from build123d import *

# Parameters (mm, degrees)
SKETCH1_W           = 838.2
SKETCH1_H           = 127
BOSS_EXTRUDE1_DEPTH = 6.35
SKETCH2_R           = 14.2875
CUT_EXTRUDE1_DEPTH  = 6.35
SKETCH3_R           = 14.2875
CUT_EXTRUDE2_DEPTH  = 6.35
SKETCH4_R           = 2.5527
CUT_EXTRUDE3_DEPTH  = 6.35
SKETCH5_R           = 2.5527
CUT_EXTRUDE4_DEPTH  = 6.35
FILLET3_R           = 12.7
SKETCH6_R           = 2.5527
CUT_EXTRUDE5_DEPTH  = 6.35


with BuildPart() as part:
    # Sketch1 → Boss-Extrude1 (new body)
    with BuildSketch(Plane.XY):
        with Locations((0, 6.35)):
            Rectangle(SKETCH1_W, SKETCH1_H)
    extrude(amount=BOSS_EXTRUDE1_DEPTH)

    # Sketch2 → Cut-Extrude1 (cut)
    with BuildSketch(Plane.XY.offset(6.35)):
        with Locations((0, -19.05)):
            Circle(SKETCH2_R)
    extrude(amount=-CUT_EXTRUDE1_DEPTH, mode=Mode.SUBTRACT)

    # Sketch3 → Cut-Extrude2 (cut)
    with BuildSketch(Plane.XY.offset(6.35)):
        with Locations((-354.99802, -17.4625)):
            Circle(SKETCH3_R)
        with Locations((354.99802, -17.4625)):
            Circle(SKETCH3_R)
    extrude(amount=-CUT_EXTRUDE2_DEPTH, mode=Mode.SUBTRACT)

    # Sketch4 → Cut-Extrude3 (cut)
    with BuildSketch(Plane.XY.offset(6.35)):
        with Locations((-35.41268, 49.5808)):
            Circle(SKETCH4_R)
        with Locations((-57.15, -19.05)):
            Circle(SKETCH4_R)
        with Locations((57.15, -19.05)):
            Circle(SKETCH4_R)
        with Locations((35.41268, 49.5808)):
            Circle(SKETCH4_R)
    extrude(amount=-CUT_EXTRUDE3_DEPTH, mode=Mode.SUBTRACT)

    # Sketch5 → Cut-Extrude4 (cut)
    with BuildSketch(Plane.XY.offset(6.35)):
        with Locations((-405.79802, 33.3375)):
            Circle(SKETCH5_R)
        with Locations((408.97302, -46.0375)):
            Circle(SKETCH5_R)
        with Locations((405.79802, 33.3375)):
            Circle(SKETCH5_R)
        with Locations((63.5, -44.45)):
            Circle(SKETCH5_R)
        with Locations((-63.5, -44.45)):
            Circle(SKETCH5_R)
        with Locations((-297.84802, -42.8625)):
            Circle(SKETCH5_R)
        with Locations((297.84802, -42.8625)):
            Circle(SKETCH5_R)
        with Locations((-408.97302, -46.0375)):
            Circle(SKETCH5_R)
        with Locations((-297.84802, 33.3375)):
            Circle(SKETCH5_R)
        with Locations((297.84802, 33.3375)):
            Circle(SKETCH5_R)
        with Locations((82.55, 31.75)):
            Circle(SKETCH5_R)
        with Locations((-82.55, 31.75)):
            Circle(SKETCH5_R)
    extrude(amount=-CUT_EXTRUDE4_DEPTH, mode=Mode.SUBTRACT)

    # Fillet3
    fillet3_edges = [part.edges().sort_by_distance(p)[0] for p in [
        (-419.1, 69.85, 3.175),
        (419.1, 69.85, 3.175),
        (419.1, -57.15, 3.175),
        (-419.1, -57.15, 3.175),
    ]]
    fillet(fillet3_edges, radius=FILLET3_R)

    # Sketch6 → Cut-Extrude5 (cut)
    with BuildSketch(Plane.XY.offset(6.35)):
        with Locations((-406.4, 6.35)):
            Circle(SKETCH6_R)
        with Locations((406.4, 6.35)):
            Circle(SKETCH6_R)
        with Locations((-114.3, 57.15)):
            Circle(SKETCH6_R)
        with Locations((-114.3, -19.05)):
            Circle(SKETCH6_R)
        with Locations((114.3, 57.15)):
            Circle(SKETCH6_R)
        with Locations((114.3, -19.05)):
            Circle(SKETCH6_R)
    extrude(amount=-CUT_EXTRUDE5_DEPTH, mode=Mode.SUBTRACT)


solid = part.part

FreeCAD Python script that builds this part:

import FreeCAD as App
import Part
import Sketcher
from FreeCAD import Vector
Q = App.Units.Quantity


def edges_at(feature, points):
    """Names of the edges that pass closest to the given points."""
    edges = feature.Shape.Edges
    near = lambda p: min(range(len(edges)), key=lambda i: edges[i].distToShape(Part.Vertex(*p))[0])
    return sorted({f"Edge{near(p) + 1}" for p in points})

doc = App.newDocument("Part")
body = doc.addObject("PartDesign::Body", "Body")

sketch1 = doc.addObject("Sketcher::SketchObject", "Sketch")
body.addObject(sketch1)
sketch1.AttachmentSupport = (doc.XY_Plane, [""])
sketch1.MapMode = "FlatFace"
sketch1.addGeometry(Part.LineSegment(Vector(-419.1, 69.85, 0), Vector(-419.1, -57.15, 0)), False)
sketch1.addGeometry(Part.LineSegment(Vector(-419.1, -57.15, 0), Vector(419.1, -57.15, 0)), False)
sketch1.addGeometry(Part.LineSegment(Vector(419.1, -57.15, 0), Vector(419.1, 69.85, 0)), False)
sketch1.addGeometry(Part.LineSegment(Vector(419.1, 69.85, 0), Vector(-419.1, 69.85, 0)), False)
sketch1.addConstraint(Sketcher.Constraint("Coincident", 0, 2, 1, 1))
sketch1.addConstraint(Sketcher.Constraint("Coincident", 1, 2, 2, 1))
sketch1.addConstraint(Sketcher.Constraint("Coincident", 2, 2, 3, 1))
sketch1.addConstraint(Sketcher.Constraint("Coincident", 3, 2, 0, 1))
sketch1.addConstraint(Sketcher.Constraint("Vertical", 0))
sketch1.addConstraint(Sketcher.Constraint("Horizontal", 1))
sketch1.addConstraint(Sketcher.Constraint("Vertical", 2))
sketch1.addConstraint(Sketcher.Constraint("Horizontal", 3))
sketch1.addConstraint(Sketcher.Constraint("DistanceX", 1, 1, 1, 2, Q("33 in")))
sketch1.addConstraint(Sketcher.Constraint("DistanceY", 0, 2, 0, 1, Q("5 in")))
sketch1.addConstraint(Sketcher.Constraint("DistanceX", 0, 2, -1, 1, Q("16.5 in")))
sketch1.addConstraint(Sketcher.Constraint("DistanceY", 0, 2, -1, 1, Q("2.25 in")))
pad1 = doc.addObject("PartDesign::Pad", "Pad")
body.addObject(pad1)
pad1.Profile = sketch1
pad1.Length = Q("0.25 in")

sketch2 = doc.addObject("Sketcher::SketchObject", "Sketch001")
body.addObject(sketch2)
sketch2.AttachmentSupport = (doc.XY_Plane, [""])
sketch2.MapMode = "FlatFace"
sketch2.AttachmentOffset = App.Placement(Vector(0, 0, 0.25 * 25.4), App.Rotation())
sketch2.addGeometry(Part.Circle(Vector(0, -19.05, 0), Vector(0, 0, 1), 14.2875), False)
sketch2.addConstraint(Sketcher.Constraint("PointOnObject", 0, 3, -2))
sketch2.addConstraint(Sketcher.Constraint("Diameter", 0, Q("1.125 in")))
sketch2.addConstraint(Sketcher.Constraint("DistanceY", 0, 3, -1, 1, Q("0.75 in")))
pocket1 = doc.addObject("PartDesign::Pocket", "Pocket")
body.addObject(pocket1)
pocket1.Profile = sketch2
pocket1.Length = Q("0.25 in")

sketch3 = doc.addObject("Sketcher::SketchObject", "Sketch002")
body.addObject(sketch3)
sketch3.AttachmentSupport = (doc.XY_Plane, [""])
sketch3.MapMode = "FlatFace"
sketch3.AttachmentOffset = App.Placement(Vector(0, 0, 0.25 * 25.4), App.Rotation())
sketch3.addGeometry(Part.Circle(Vector(-354.99802, -17.4625, 0), Vector(0, 0, 1), 14.2875), False)
sketch3.addGeometry(Part.Circle(Vector(354.99802, -17.4625, 0), Vector(0, 0, 1), 14.2875), False)
sketch3.addConstraint(Sketcher.Constraint("Equal", 0, 1))
sketch3.addConstraint(Sketcher.Constraint("Symmetric", 0, 3, 1, 3, -2))
sketch3.addConstraint(Sketcher.Constraint("Diameter", 0, Q("1.125 in")))
sketch3.addConstraint(Sketcher.Constraint("DistanceY", 0, 3, -1, 1, Q("0.6875 in")))
sketch3.addConstraint(Sketcher.Constraint("DistanceX", 0, 3, -1, 1, Q("13.9763 in")))
pocket2 = doc.addObject("PartDesign::Pocket", "Pocket001")
body.addObject(pocket2)
pocket2.Profile = sketch3
pocket2.Length = Q("0.25 in")

sketch4 = doc.addObject("Sketcher::SketchObject", "Sketch003")
body.addObject(sketch4)
sketch4.AttachmentSupport = (doc.XY_Plane, [""])
sketch4.MapMode = "FlatFace"
sketch4.AttachmentOffset = App.Placement(Vector(0, 0, 0.25 * 25.4), App.Rotation())
sketch4.addGeometry(Part.Circle(Vector(-35.41268, 49.5808, 0), Vector(0, 0, 1), 2.5527), False)
sketch4.addGeometry(Part.Circle(Vector(-57.15, -19.05, 0), Vector(0, 0, 1), 2.5527), False)
sketch4.addGeometry(Part.Circle(Vector(57.15, -19.05, 0), Vector(0, 0, 1), 2.5527), False)
sketch4.addGeometry(Part.Circle(Vector(35.41268, 49.5808, 0), Vector(0, 0, 1), 2.5527), False)
sketch4.addConstraint(Sketcher.Constraint("Equal", 0, 1))
sketch4.addConstraint(Sketcher.Constraint("Equal", 1, 2))
sketch4.addConstraint(Sketcher.Constraint("Equal", 2, 3))
sketch4.addConstraint(Sketcher.Constraint("Symmetric", 1, 3, 2, 3, -2))
sketch4.addConstraint(Sketcher.Constraint("Symmetric", 0, 3, 3, 3, -2))
sketch4.addConstraint(Sketcher.Constraint("Diameter", 0, Q("0.201 in")))
sketch4.addConstraint(Sketcher.Constraint("DistanceX", 1, 3, 2, 3, Q("4.5 in")))
sketch4.addConstraint(Sketcher.Constraint("DistanceY", 1, 3, -1, 1, Q("0.75 in")))
sketch4.addConstraint(Sketcher.Constraint("DistanceY", -1, 1, 0, 3, Q("1.952 in")))
sketch4.addConstraint(Sketcher.Constraint("DistanceX", 0, 3, -1, 1, Q("1.3942 in")))
pocket3 = doc.addObject("PartDesign::Pocket", "Pocket002")
body.addObject(pocket3)
pocket3.Profile = sketch4
pocket3.Length = Q("0.25 in")

sketch5 = doc.addObject("Sketcher::SketchObject", "Sketch004")
body.addObject(sketch5)
sketch5.AttachmentSupport = (doc.XY_Plane, [""])
sketch5.MapMode = "FlatFace"
sketch5.AttachmentOffset = App.Placement(Vector(0, 0, 0.25 * 25.4), App.Rotation())
sketch5.addGeometry(Part.Circle(Vector(-405.79802, 33.3375, 0), Vector(0, 0, 1), 2.5527), False)
sketch5.addGeometry(Part.Circle(Vector(408.97302, -46.0375, 0), Vector(0, 0, 1), 2.5527), False)
sketch5.addGeometry(Part.Circle(Vector(405.79802, 33.3375, 0), Vector(0, 0, 1), 2.5527), False)
sketch5.addGeometry(Part.Circle(Vector(63.5, -44.45, 0), Vector(0, 0, 1), 2.5527), False)
sketch5.addGeometry(Part.Circle(Vector(-63.5, -44.45, 0), Vector(0, 0, 1), 2.5527), False)
sketch5.addGeometry(Part.Circle(Vector(-297.84802, -42.8625, 0), Vector(0, 0, 1), 2.5527), False)
sketch5.addGeometry(Part.Circle(Vector(297.84802, -42.8625, 0), Vector(0, 0, 1), 2.5527), False)
sketch5.addGeometry(Part.Circle(Vector(-408.97302, -46.0375, 0), Vector(0, 0, 1), 2.5527), False)
sketch5.addGeometry(Part.Circle(Vector(-297.84802, 33.3375, 0), Vector(0, 0, 1), 2.5527), False)
sketch5.addGeometry(Part.Circle(Vector(297.84802, 33.3375, 0), Vector(0, 0, 1), 2.5527), False)
sketch5.addGeometry(Part.Circle(Vector(82.55, 31.75, 0), Vector(0, 0, 1), 2.5527), False)
sketch5.addGeometry(Part.Circle(Vector(-82.55, 31.75, 0), Vector(0, 0, 1), 2.5527), False)
sketch5.addConstraint(Sketcher.Constraint("Equal", 0, 1))
sketch5.addConstraint(Sketcher.Constraint("Equal", 1, 2))
sketch5.addConstraint(Sketcher.Constraint("Equal", 2, 3))
sketch5.addConstraint(Sketcher.Constraint("Equal", 3, 4))
sketch5.addConstraint(Sketcher.Constraint("Equal", 4, 5))
sketch5.addConstraint(Sketcher.Constraint("Equal", 5, 6))
sketch5.addConstraint(Sketcher.Constraint("Equal", 6, 7))
sketch5.addConstraint(Sketcher.Constraint("Equal", 7, 8))
sketch5.addConstraint(Sketcher.Constraint("Equal", 8, 9))
sketch5.addConstraint(Sketcher.Constraint("Equal", 9, 10))
sketch5.addConstraint(Sketcher.Constraint("Equal", 10, 11))
sketch5.addConstraint(Sketcher.Constraint("Symmetric", 0, 3, 2, 3, -2))
sketch5.addConstraint(Sketcher.Constraint("Symmetric", 3, 3, 4, 3, -2))
sketch5.addConstraint(Sketcher.Constraint("Symmetric", 5, 3, 6, 3, -2))
sketch5.addConstraint(Sketcher.Constraint("Symmetric", 1, 3, 7, 3, -2))
sketch5.addConstraint(Sketcher.Constraint("Symmetric", 8, 3, 9, 3, -2))
sketch5.addConstraint(Sketcher.Constraint("Symmetric", 10, 3, 11, 3, -2))
sketch5.addConstraint(Sketcher.Constraint("Horizontal", 2, 3, 8, 3))
sketch5.addConstraint(Sketcher.Constraint("Vertical", 5, 3, 8, 3))
sketch5.addConstraint(Sketcher.Constraint("Diameter", 0, Q("0.201 in")))
sketch5.addConstraint(Sketcher.Constraint("DistanceX", 4, 3, 3, 3, Q("5 in")))
sketch5.addConstraint(Sketcher.Constraint("DistanceY", 5, 3, 0, 3, Q("3 in")))
sketch5.addConstraint(Sketcher.Constraint("DistanceY", 3, 3, 10, 3, Q("3 in")))
sketch5.addConstraint(Sketcher.Constraint("DistanceX", 11, 3, 10, 3, Q("6.5 in")))
sketch5.addConstraint(Sketcher.Constraint("DistanceY", 3, 3, -1, 1, Q("1.75 in")))
sketch5.addConstraint(Sketcher.Constraint("DistanceX", 0, 3, 5, 3, Q("4.25 in")))
sketch5.addConstraint(Sketcher.Constraint("DistanceY", -1, 1, 0, 3, Q("1.3125 in")))
sketch5.addConstraint(Sketcher.Constraint("DistanceY", 1, 3, -1, 1, Q("1.8125 in")))
sketch5.addConstraint(Sketcher.Constraint("DistanceX", 2, 3, 1, 3, Q("0.125 in")))
sketch5.addConstraint(Sketcher.Constraint("DistanceX", 0, 3, -1, 1, Q("15.9763 in")))
pocket4 = doc.addObject("PartDesign::Pocket", "Pocket003")
body.addObject(pocket4)
pocket4.Profile = sketch5
pocket4.Length = Q("0.25 in")
doc.recompute()

fillet = doc.addObject("PartDesign::Fillet", "Fillet")
body.addObject(fillet)
fillet.Base = (pocket4, edges_at(pocket4, [
    (-419.1, 69.85, 3.175),
    (419.1, 69.85, 3.175),
    (419.1, -57.15, 3.175),
    (-419.1, -57.15, 3.175),
]))
fillet.Radius = Q("0.5 in")

sketch6 = doc.addObject("Sketcher::SketchObject", "Sketch005")
body.addObject(sketch6)
sketch6.AttachmentSupport = (doc.XY_Plane, [""])
sketch6.MapMode = "FlatFace"
sketch6.AttachmentOffset = App.Placement(Vector(0, 0, 0.25 * 25.4), App.Rotation())
sketch6.addGeometry(Part.Circle(Vector(-406.4, 6.35, 0), Vector(0, 0, 1), 2.5527), False)
sketch6.addGeometry(Part.Circle(Vector(406.4, 6.35, 0), Vector(0, 0, 1), 2.5527), False)
sketch6.addGeometry(Part.Circle(Vector(-114.3, 57.15, 0), Vector(0, 0, 1), 2.5527), False)
sketch6.addGeometry(Part.Circle(Vector(-114.3, -19.05, 0), Vector(0, 0, 1), 2.5527), False)
sketch6.addGeometry(Part.Circle(Vector(114.3, 57.15, 0), Vector(0, 0, 1), 2.5527), False)
sketch6.addGeometry(Part.Circle(Vector(114.3, -19.05, 0), Vector(0, 0, 1), 2.5527), False)
sketch6.addConstraint(Sketcher.Constraint("Equal", 0, 1))
sketch6.addConstraint(Sketcher.Constraint("Equal", 1, 2))
sketch6.addConstraint(Sketcher.Constraint("Equal", 2, 3))
sketch6.addConstraint(Sketcher.Constraint("Equal", 3, 4))
sketch6.addConstraint(Sketcher.Constraint("Equal", 4, 5))
sketch6.addConstraint(Sketcher.Constraint("Symmetric", 0, 3, 1, 3, -2))
sketch6.addConstraint(Sketcher.Constraint("Symmetric", 2, 3, 4, 3, -2))
sketch6.addConstraint(Sketcher.Constraint("Symmetric", 3, 3, 5, 3, -2))
sketch6.addConstraint(Sketcher.Constraint("Vertical", 2, 3, 3, 3))
sketch6.addConstraint(Sketcher.Constraint("Diameter", 0, Q("0.201 in")))
sketch6.addConstraint(Sketcher.Constraint("DistanceX", 0, 3, -1, 1, Q("16 in")))
sketch6.addConstraint(Sketcher.Constraint("DistanceY", 0, 3, 2, 3, Q("2 in")))
sketch6.addConstraint(Sketcher.Constraint("DistanceY", 3, 3, 2, 3, Q("3 in")))
sketch6.addConstraint(Sketcher.Constraint("DistanceX", 2, 3, 4, 3, Q("9 in")))
sketch6.addConstraint(Sketcher.Constraint("DistanceY", -1, 1, 0, 3, Q("0.25 in")))
pocket5 = doc.addObject("PartDesign::Pocket", "Pocket004")
body.addObject(pocket5)
pocket5.Profile = sketch6
pocket5.Length = Q("0.25 in")

doc.recompute()
